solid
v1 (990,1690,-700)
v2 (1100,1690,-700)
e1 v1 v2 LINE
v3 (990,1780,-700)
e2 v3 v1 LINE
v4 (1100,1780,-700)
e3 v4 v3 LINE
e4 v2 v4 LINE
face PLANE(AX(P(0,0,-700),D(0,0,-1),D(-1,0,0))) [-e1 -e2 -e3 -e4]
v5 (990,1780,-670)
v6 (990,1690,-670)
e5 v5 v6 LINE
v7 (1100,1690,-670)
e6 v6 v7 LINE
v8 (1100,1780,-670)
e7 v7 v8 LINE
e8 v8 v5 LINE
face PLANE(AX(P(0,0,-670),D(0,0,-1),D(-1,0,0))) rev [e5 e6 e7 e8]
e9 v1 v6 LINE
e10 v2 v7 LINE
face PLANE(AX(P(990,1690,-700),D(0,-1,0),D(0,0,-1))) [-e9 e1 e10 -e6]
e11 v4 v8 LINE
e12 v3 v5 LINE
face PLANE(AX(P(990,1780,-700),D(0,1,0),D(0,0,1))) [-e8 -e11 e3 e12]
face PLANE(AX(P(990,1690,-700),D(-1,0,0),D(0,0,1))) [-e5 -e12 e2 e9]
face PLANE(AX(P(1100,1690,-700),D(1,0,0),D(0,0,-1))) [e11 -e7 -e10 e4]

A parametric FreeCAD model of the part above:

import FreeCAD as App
import Part
import Sketcher
Q = App.Units.Quantity

doc = App.newDocument("Part")
body = doc.addObject("PartDesign::Body", "Body")

# Sketch on XY plane
sketch1 = body.newObject("Sketcher::SketchObject", "Sketch")
sketch1.AttachmentSupport = (doc.getObject("XY_Plane"), [""])
sketch1.MapMode = "FlatFace"
sketch1.AttachmentOffset = App.Placement(App.Vector(0, 0, -670), App.Rotation())
sketch1.addGeometry(Part.LineSegment(App.Vector(990, 1780, 0), App.Vector(990, 1690, 0)), False)
sketch1.addGeometry(Part.LineSegment(App.Vector(990, 1690, 0), App.Vector(1100, 1690, 0)), False)
sketch1.addGeometry(Part.LineSegment(App.Vector(1100, 1690, 0), App.Vector(1100, 1780, 0)), False)
sketch1.addGeometry(Part.LineSegment(App.Vector(1100, 1780, 0), App.Vector(990, 1780, 0)), False)
sketch1.addConstraint(Sketcher.Constraint("Coincident", 0, 2, 1, 1))
sketch1.addConstraint(Sketcher.Constraint("Coincident", 1, 2, 2, 1))
sketch1.addConstraint(Sketcher.Constraint("Coincident", 2, 2, 3, 1))
sketch1.addConstraint(Sketcher.Constraint("Coincident", 3, 2, 0, 1))
sketch1.addConstraint(Sketcher.Constraint("Vertical", 0))
sketch1.addConstraint(Sketcher.Constraint("Horizontal", 1))
sketch1.addConstraint(Sketcher.Constraint("Vertical", 2))
sketch1.addConstraint(Sketcher.Constraint("Horizontal", 3))
sketch1.addConstraint(Sketcher.Constraint("DistanceX", 1, 1, 1, 2, Q("110 mm")))
sketch1.addConstraint(Sketcher.Constraint("DistanceY", 0, 2, 0, 1, Q("90 mm")))
sketch1.addConstraint(Sketcher.Constraint("DistanceX", -1, 1, 0, 2, Q("990 mm")))
sketch1.addConstraint(Sketcher.Constraint("DistanceY", -1, 1, 0, 2, Q("1690 mm")))
pad1 = body.newObject("PartDesign::Pad", "Pad")
pad1.Profile = sketch1
pad1.Length = 30
pad1.Reversed = True

doc.recompute()
